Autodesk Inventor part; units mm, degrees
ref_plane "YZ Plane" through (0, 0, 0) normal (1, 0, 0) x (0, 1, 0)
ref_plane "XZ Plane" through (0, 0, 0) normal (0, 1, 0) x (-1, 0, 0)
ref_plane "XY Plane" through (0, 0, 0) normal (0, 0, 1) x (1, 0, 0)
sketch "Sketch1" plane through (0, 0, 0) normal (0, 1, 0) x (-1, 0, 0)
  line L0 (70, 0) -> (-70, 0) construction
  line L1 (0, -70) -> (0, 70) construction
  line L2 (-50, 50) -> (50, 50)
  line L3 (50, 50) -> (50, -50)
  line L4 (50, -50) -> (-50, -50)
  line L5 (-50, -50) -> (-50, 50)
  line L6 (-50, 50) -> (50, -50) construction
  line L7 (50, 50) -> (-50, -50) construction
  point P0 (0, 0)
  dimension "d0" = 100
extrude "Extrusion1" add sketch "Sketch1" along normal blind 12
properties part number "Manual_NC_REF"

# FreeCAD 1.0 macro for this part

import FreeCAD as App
import Part
import Sketcher

V = App.Vector
Q = App.Units.Quantity


def add_polygon(sketch, points):
    """Adds a closed chain of lines whose ends are joined by coincident constraints."""
    first, n = sketch.GeometryCount, len(points)
    for a, b in zip(points, points[1:] + points[:1]):
        sketch.addGeometry(Part.LineSegment(App.Vector(*a, 0), App.Vector(*b, 0)), False)
    for i in range(n):
        sketch.addConstraint(Sketcher.Constraint("Coincident", first + i, 2, first + (i + 1) % n, 1))

doc = App.newDocument("Part")
body = doc.addObject("PartDesign::Body", "Body")

sketch1 = body.newObject("Sketcher::SketchObject", "Sketch")
sketch1.AttachmentSupport = (doc.getObject("XZ_Plane"), [""])
sketch1.MapMode = "FlatFace"
add_polygon(sketch1, [(-50, 50), (50, 50), (50, -50), (-50, -50)])
sketch1.addConstraint([
    Sketcher.Constraint("Horizontal", 0),
    Sketcher.Constraint("Vertical", 1),
    Sketcher.Constraint("Horizontal", 2),
    Sketcher.Constraint("Vertical", 3),
    Sketcher.Constraint("Symmetric", 0, 2, 2, 2, -1, 1),
    Sketcher.Constraint("Equal", 2, 1),
    Sketcher.Constraint("DistanceX", 0, 1, 0, 2, Q("100 mm")),
])
pad1 = body.newObject("PartDesign::Pad", "Pad")
pad1.Profile = sketch1
pad1.Length = 12
pad1.Reversed = True

doc.recompute()
